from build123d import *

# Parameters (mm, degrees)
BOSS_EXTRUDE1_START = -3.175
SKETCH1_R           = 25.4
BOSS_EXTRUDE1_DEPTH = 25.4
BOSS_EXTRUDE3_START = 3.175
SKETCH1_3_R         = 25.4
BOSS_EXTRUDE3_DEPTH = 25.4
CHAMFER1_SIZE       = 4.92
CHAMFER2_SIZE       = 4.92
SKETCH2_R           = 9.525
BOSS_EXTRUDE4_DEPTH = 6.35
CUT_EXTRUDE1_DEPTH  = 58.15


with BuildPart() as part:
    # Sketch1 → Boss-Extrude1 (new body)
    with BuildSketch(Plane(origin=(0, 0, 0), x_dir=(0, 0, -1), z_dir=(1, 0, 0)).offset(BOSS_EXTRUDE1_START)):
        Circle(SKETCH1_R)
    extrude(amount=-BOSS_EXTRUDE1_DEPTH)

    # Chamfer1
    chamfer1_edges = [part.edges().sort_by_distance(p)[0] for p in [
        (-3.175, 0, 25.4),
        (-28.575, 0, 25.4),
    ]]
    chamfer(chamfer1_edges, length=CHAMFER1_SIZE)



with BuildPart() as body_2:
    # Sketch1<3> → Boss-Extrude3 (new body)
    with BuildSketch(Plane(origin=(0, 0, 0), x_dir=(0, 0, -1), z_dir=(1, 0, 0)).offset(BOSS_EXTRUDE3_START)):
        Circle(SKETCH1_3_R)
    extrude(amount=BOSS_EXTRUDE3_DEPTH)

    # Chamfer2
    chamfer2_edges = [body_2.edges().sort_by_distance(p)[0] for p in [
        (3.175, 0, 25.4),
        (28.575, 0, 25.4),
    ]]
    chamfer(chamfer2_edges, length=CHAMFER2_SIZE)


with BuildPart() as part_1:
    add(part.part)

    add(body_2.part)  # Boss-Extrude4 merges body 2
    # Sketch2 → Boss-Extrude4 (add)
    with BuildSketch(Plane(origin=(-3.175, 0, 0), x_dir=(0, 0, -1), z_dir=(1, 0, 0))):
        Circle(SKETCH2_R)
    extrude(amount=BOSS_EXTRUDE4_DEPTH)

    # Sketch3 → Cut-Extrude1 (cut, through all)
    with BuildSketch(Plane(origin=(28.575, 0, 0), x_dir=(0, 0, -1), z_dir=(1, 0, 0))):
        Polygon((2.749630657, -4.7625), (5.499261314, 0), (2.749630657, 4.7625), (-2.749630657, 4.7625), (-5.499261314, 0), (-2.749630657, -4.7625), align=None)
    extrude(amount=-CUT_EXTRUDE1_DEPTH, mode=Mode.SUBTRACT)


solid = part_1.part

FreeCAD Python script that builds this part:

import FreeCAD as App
import Part
import Sketcher
from FreeCAD import Vector
Q = App.Units.Quantity


def edges_at(feature, points):
    """Names of the edges that pass closest to the given points."""
    edges = feature.Shape.Edges
    near = lambda p: min(range(len(edges)), key=lambda i: edges[i].distToShape(Part.Vertex(*p))[0])
    return sorted({f"Edge{near(p) + 1}" for p in points})


def add_polygon(sketch, points):
    """Adds a closed chain of lines whose ends are joined by coincident constraints."""
    first, n = sketch.GeometryCount, len(points)
    for a, b in zip(points, points[1:] + points[:1]):
        sketch.addGeometry(Part.LineSegment(App.Vector(*a, 0), App.Vector(*b, 0)), False)
    for i in range(n):
        sketch.addConstraint(Sketcher.Constraint("Coincident", first + i, 2, first + (i + 1) % n, 1))

doc = App.newDocument("Part")
body = doc.addObject("PartDesign::Body", "Body")

# Sketch on YZ plane
sketch1 = body.newObject("Sketcher::SketchObject", "Sketch")
sketch1.AttachmentSupport = (doc.getObject("YZ_Plane"), [""])
sketch1.MapMode = "FlatFace"
sketch1.AttachmentOffset = App.Placement(Vector(0, 0, -0.125 * 25.4), App.Rotation())
sketch1.addGeometry(Part.Circle(Vector(0, 0, 0), Vector(0, 0, 1), 25), False)
sketch1.addConstraint([
    Sketcher.Constraint("Coincident", 0, 3, -1, 1),
    Sketcher.Constraint("Diameter", 0, Q("2 in")),
])
pad1 = body.newObject("PartDesign::Pad", "Pad")
pad1.Profile = sketch1
pad1.Length = Q("1 in")
pad1.Reversed = True
doc.recompute()

chamfer = body.newObject("PartDesign::Chamfer", "Chamfer")
chamfer.Base = (pad1, edges_at(pad1, [(-3.175, 0, 25.4), (-28.575, 0, 25.4)]))
chamfer.Size = 4.92
body2 = doc.addObject("PartDesign::Body", "Body001")

# Sketch on YZ plane
sketch2 = body2.newObject("Sketcher::SketchObject", "Sketch001")
sketch2.AttachmentSupport = (doc.getObject("YZ_Plane001"), [""])
sketch2.MapMode = "FlatFace"
sketch2.AttachmentOffset = App.Placement(Vector(0, 0, 0.125 * 25.4), App.Rotation())
sketch2.addGeometry(Part.Circle(Vector(0, 0, 0), Vector(0, 0, 1), 25), False)
sketch2.addConstraint([
    Sketcher.Constraint("Coincident", 0, 3, -1, 1),
    Sketcher.Constraint("Diameter", 0, Q("2 in")),
])
pad2 = body2.newObject("PartDesign::Pad", "Pad001")
pad2.Profile = sketch2
pad2.Length = Q("1 in")
doc.recompute()

chamfer2 = body2.newObject("PartDesign::Chamfer", "Chamfer001")
chamfer2.Base = (pad2, edges_at(pad2, [(3.175, 0, 25.4), (28.575, 0, 25.4)]))
chamfer2.Size = 4.92
body.AllowCompound = True
doc.recompute()

boolean = body.newObject("PartDesign::Boolean", "Boolean")
boolean.Type = "Fuse"
boolean.addObjects([body2])

# Sketch on YZ plane
sketch3 = body.newObject("Sketcher::SketchObject", "Sketch002")
sketch3.AttachmentSupport = (doc.getObject("YZ_Plane"), [""])
sketch3.MapMode = "FlatFace"
sketch3.AttachmentOffset = App.Placement(Vector(0, 0, -0.125 * 25.4), App.Rotation())
sketch3.addGeometry(Part.Circle(Vector(0, 0, 0), Vector(0, 0, 1), 10), False)
sketch3.addConstraint([
    Sketcher.Constraint("Coincident", 0, 3, -1, 1),
    Sketcher.Constraint("Diameter", 0, Q("0.75 in")),
])
pad3 = body.newObject("PartDesign::Pad", "Pad002")
pad3.Profile = sketch3
pad3.Length = Q("0.25 in")

# Sketch on YZ plane
sketch4 = body.newObject("Sketcher::SketchObject", "Sketch003")
sketch4.AttachmentSupport = (doc.getObject("YZ_Plane"), [""])
sketch4.MapMode = "FlatFace"
sketch4.AttachmentOffset = App.Placement(Vector(0, 0, 1.125 * 25.4), App.Rotation())
add_polygon(sketch4, [(-5, -3), (0, -5), (5, -3), (5, 3), (0, 5), (-5, 3)])  # lines 0-5
sketch4.addConstraint([
    Sketcher.Constraint("Vertical", 2),
    Sketcher.Constraint("Vertical", 5),
    Sketcher.Constraint("Symmetric", 0, 2, 3, 2, -1, 1),
    Sketcher.Constraint("Symmetric", 1, 2, 4, 2, -1, 1),
    Sketcher.Constraint("PointOnObject", 0, 2, -2),
    Sketcher.Constraint("Parallel", 0, 3),
    Sketcher.Constraint("Horizontal", 2, 2, 4, 2),
    Sketcher.Constraint("Angle", 0, Q("-30 deg")),
    Sketcher.Constraint("DistanceX", -1, 1, 1, 2, Q("0.1875 in")),
    Sketcher.Constraint("DistanceY", 2, 1, 2, 2, 5.499261),
])
pocket1 = body.newObject("PartDesign::Pocket", "Pocket")
pocket1.Profile = sketch4
pocket1.Type = "ThroughAll"

doc.recompute()
